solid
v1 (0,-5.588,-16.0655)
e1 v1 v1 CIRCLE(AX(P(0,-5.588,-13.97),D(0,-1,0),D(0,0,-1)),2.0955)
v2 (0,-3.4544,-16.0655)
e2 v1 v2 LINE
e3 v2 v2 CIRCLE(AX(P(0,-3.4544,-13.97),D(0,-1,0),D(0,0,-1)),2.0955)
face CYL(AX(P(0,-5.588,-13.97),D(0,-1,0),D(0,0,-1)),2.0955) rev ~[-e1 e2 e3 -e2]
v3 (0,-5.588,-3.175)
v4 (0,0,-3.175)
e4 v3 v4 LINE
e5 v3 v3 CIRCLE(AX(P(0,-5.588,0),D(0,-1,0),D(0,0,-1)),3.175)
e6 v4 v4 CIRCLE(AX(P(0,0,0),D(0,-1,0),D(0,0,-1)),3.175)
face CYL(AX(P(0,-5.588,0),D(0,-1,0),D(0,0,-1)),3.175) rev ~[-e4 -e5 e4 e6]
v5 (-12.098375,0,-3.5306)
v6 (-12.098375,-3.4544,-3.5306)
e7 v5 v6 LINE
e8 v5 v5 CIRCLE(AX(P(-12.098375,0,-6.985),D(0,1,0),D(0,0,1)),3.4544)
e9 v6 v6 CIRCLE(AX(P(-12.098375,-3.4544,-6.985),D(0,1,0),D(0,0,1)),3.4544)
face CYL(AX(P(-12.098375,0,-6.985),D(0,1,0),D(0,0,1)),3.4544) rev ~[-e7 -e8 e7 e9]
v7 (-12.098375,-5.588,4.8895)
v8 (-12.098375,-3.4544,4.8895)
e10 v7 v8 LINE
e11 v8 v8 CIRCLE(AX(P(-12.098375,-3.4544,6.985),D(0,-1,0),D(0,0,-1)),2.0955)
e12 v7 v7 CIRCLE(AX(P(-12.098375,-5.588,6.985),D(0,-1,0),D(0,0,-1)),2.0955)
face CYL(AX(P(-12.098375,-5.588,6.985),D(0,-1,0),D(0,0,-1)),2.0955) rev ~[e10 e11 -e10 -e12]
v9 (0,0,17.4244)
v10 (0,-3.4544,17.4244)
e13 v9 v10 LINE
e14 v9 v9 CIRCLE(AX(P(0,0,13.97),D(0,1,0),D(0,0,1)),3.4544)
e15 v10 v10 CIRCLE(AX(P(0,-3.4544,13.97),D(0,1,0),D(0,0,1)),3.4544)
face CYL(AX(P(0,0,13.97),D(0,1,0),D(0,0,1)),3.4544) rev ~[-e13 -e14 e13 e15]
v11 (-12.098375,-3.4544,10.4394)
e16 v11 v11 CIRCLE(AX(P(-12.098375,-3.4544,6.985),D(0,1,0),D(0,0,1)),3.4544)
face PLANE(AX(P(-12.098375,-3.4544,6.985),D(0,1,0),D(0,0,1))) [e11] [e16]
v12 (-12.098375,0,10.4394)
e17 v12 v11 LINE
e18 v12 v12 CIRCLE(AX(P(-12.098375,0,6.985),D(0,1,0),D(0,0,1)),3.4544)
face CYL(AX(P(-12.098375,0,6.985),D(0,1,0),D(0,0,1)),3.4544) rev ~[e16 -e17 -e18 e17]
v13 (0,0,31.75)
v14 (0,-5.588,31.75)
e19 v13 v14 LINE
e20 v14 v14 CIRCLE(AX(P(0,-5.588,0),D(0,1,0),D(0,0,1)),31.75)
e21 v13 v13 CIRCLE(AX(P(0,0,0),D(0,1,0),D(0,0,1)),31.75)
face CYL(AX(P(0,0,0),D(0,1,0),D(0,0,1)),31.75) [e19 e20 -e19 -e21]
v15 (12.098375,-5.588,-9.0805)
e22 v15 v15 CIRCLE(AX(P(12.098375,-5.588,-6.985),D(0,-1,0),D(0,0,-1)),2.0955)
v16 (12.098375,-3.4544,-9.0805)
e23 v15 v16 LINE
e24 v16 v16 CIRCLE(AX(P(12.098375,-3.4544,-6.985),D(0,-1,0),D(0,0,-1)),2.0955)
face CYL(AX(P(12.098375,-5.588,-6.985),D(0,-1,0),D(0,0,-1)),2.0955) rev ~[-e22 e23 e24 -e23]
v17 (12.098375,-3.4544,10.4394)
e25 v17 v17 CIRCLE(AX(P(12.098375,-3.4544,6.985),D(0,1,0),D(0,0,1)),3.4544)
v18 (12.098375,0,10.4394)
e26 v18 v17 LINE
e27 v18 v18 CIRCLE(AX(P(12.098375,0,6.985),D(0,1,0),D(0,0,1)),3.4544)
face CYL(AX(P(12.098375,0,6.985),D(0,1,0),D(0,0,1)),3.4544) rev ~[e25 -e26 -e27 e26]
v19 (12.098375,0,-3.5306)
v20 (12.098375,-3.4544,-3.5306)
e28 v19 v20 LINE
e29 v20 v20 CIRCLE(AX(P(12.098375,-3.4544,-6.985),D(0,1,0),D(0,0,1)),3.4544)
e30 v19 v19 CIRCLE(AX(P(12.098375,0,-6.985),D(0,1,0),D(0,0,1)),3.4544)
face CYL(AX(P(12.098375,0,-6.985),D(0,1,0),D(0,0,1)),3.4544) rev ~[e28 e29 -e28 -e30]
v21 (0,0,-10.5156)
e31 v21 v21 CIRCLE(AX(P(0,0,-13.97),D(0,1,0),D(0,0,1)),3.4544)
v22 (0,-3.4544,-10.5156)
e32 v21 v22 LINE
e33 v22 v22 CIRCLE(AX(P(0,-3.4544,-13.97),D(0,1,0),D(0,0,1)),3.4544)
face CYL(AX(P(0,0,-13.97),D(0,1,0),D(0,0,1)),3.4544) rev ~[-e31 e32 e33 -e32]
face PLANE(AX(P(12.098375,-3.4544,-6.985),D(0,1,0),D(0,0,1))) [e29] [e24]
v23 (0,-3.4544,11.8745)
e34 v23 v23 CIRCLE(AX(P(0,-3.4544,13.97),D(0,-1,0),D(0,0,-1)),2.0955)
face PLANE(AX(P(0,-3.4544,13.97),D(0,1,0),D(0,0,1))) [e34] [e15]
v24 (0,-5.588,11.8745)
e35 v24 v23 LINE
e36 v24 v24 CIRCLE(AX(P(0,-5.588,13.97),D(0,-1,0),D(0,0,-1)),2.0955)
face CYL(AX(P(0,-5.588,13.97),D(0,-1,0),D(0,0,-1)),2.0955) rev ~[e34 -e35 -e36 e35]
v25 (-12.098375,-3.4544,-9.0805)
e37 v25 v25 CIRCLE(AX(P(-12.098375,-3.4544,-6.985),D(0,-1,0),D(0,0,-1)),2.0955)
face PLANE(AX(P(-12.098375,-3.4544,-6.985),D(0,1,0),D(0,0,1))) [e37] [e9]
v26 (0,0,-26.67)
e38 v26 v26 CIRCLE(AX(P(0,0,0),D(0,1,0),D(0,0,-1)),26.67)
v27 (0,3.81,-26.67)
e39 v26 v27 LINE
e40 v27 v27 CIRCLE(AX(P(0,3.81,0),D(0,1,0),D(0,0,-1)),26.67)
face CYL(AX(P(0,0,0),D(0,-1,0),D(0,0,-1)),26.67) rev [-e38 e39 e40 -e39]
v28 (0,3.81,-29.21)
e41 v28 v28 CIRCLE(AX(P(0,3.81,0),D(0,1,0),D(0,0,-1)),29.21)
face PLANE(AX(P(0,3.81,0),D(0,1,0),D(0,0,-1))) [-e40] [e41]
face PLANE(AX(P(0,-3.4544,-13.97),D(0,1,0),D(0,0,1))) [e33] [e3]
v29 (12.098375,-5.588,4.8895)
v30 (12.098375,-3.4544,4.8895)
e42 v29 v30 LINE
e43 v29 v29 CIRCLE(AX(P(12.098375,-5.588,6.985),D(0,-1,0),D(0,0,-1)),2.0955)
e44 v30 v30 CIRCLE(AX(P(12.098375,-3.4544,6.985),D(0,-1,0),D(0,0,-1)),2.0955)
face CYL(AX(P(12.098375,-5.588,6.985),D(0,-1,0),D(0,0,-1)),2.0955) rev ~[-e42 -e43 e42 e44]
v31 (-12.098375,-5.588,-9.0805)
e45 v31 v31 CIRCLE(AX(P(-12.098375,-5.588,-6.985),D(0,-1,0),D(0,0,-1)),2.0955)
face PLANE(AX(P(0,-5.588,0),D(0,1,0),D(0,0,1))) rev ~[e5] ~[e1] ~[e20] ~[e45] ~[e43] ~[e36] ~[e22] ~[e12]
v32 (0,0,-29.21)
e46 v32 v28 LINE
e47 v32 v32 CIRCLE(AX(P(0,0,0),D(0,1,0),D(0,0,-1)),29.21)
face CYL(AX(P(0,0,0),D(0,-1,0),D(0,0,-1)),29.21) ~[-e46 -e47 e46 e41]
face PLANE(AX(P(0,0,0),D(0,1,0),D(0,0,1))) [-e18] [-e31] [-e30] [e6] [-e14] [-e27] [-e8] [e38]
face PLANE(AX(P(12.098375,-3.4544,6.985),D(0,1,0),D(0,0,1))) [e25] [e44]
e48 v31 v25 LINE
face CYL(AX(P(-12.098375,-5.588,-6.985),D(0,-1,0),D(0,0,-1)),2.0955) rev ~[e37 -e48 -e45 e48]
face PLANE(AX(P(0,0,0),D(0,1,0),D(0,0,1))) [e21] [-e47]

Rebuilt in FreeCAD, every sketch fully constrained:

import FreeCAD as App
import Part
import Sketcher

V = App.Vector
Q = App.Units.Quantity

doc = App.newDocument("Part")
params = doc.addObject("Spreadsheet::Sheet", "Params")
for row, (alias, value) in enumerate([
    ("sketch1_diameter", "2.5 in"),
    ("pad1_length", "0.22 in"),
    ("sketch2_diameter", "0.165 in"),
    ("pocket1_length", "0.3 in"),
    ("sketch3_diameter", "0.272 in"),
    ("pocket2_length", "0.136 in"),
    ("sketch4_diameter", "0.25 in"),
    ("sketch5_diameter", "2.3 in"),
    ("sketch5_diameter2", "2.1 in"),
    ("pad2_length", "0.15 in"),
], start=1):
    params.set(f"A{row}", alias)
    params.set(f"B{row}", "=" + value)
    params.setAlias(f"B{row}", alias)

body = doc.addObject("PartDesign::Body", "Body")

# Sketch on XZ plane
sketch1 = body.newObject("Sketcher::SketchObject", "Sketch")
sketch1.AttachmentSupport = (doc.getObject("XZ_Plane"), [""])
sketch1.MapMode = "FlatFace"
sketch1.addGeometry(Part.Circle(V(0, 0, 0), V(0, 0, 1), 31.75), False)
sketch1.addConstraint(Sketcher.Constraint("Coincident", 0, 3, -1, 1))
sketch1.addConstraint(Sketcher.Constraint("Diameter", 0, Q("2.5 in")))
sketch1.setExpression("Constraints[1]", "Params.sketch1_diameter")
pad1 = body.newObject("PartDesign::Pad", "Pad")
pad1.Profile = sketch1
pad1.setExpression("Length", "Params.pad1_length")

# Sketch on XZ plane
sketch2 = body.newObject("Sketcher::SketchObject", "Sketch001")
sketch2.AttachmentSupport = (doc.getObject("XZ_Plane"), [""])
sketch2.MapMode = "FlatFace"
sketch2.AttachmentOffset = App.Placement(V(0, 0, 0.22 * 25.4), App.Rotation())
sketch2.addGeometry(Part.Circle(V(0, 13.97, 0), V(0, 0, 1), 2.0955), False)
sketch2.addGeometry(Part.Circle(V(12.098375, 6.985, 0), V(0, 0, 1), 2.0955), False)
sketch2.addGeometry(Part.Circle(V(12.098375, -6.985, 0), V(0, 0, 1), 2.0955), False)
sketch2.addGeometry(Part.Circle(V(0, -13.97, 0), V(0, 0, 1), 2.0955), False)
sketch2.addGeometry(Part.Circle(V(-12.098375, -6.985, 0), V(0, 0, 1), 2.0955), False)
sketch2.addGeometry(Part.Circle(V(-12.098375, 6.985, 0), V(0, 0, 1), 2.0955), False)
sketch2.addConstraint(Sketcher.Constraint("Equal", 0, 1))
sketch2.addConstraint(Sketcher.Constraint("Equal", 1, 2))
sketch2.addConstraint(Sketcher.Constraint("Equal", 2, 3))
sketch2.addConstraint(Sketcher.Constraint("Equal", 3, 4))
sketch2.addConstraint(Sketcher.Constraint("Equal", 4, 5))
sketch2.addConstraint(Sketcher.Constraint("Symmetric", 0, 3, 3, 3, -1, 1))
sketch2.addConstraint(Sketcher.Constraint("Symmetric", 1, 3, 4, 3, -1, 1))
sketch2.addConstraint(Sketcher.Constraint("Symmetric", 2, 3, 5, 3, -1, 1))
sketch2.addConstraint(Sketcher.Constraint("Symmetric", 2, 3, 4, 3, -2))
sketch2.addConstraint(Sketcher.Constraint("PointOnObject", 0, 3, -2))
sketch2.addConstraint(Sketcher.Constraint("Diameter", 0, Q("0.165 in")))
sketch2.addConstraint(Sketcher.Constraint("DistanceY", 3, 3, 0, 3, Q("1.1 in")))
sketch2.addConstraint(Sketcher.Constraint("DistanceY", 2, 3, 1, 3, Q("0.55 in")))
sketch2.addConstraint(Sketcher.Constraint("DistanceX", 4, 3, 2, 3, 24.19675))
sketch2.setExpression("Constraints[10]", "Params.sketch2_diameter")
pocket1 = body.newObject("PartDesign::Pocket", "Pocket")
pocket1.Profile = sketch2
pocket1.setExpression("Length", "Params.pocket1_length")

# Sketch on XZ plane
sketch3 = body.newObject("Sketcher::SketchObject", "Sketch002")
sketch3.AttachmentSupport = (doc.getObject("XZ_Plane"), [""])
sketch3.MapMode = "FlatFace"
sketch3.addGeometry(Part.Circle(V(12.098375, 6.985, 0), V(0, 0, 1), 3.4544), False)
sketch3.addGeometry(Part.Circle(V(0, 13.97, 0), V(0, 0, 1), 3.4544), False)
sketch3.addGeometry(Part.Circle(V(-12.098375, 6.985, 0), V(0, 0, 1), 3.4544), False)
sketch3.addGeometry(Part.Circle(V(-12.098375, -6.985, 0), V(0, 0, 1), 3.4544), False)
sketch3.addGeometry(Part.Circle(V(0, -13.97, 0), V(0, 0, 1), 3.4544), False)
sketch3.addGeometry(Part.Circle(V(12.098375, -6.985, 0), V(0, 0, 1), 3.4544), False)
sketch3.addConstraint(Sketcher.Constraint("Equal", 0, 1))
sketch3.addConstraint(Sketcher.Constraint("Equal", 1, 2))
sketch3.addConstraint(Sketcher.Constraint("Equal", 2, 3))
sketch3.addConstraint(Sketcher.Constraint("Equal", 3, 4))
sketch3.addConstraint(Sketcher.Constraint("Equal", 4, 5))
sketch3.addConstraint(Sketcher.Constraint("Symmetric", 0, 3, 3, 3, -1, 1))
sketch3.addConstraint(Sketcher.Constraint("Symmetric", 1, 3, 4, 3, -1, 1))
sketch3.addConstraint(Sketcher.Constraint("Symmetric", 2, 3, 5, 3, -1, 1))
sketch3.addConstraint(Sketcher.Constraint("Symmetric", 0, 3, 2, 3, -2))
sketch3.addConstraint(Sketcher.Constraint("PointOnObject", 1, 3, -2))
sketch3.addConstraint(Sketcher.Constraint("Diameter", 0, Q("0.272 in")))
sketch3.addConstraint(Sketcher.Constraint("DistanceY", 4, 3, 1, 3, Q("1.1 in")))
sketch3.addConstraint(Sketcher.Constraint("DistanceY", 3, 3, 2, 3, Q("0.55 in")))
sketch3.addConstraint(Sketcher.Constraint("DistanceX", 2, 3, 0, 3, 24.19675))
sketch3.setExpression("Constraints[10]", "Params.sketch3_diameter")
pocket2 = body.newObject("PartDesign::Pocket", "Pocket001")
pocket2.Profile = sketch3
pocket2.setExpression("Length", "Params.pocket2_length")
pocket2.Reversed = True

# Sketch on XZ plane
sketch4 = body.newObject("Sketcher::SketchObject", "Sketch003")
sketch4.AttachmentSupport = (doc.getObject("XZ_Plane"), [""])
sketch4.MapMode = "FlatFace"
sketch4.AttachmentOffset = App.Placement(V(0, 0, 0.22 * 25.4), App.Rotation())
sketch4.addGeometry(Part.Circle(V(0, 0, 0), V(0, 0, 1), 3.175), False)
sketch4.addConstraint(Sketcher.Constraint("Coincident", 0, 3, -1, 1))
sketch4.addConstraint(Sketcher.Constraint("Diameter", 0, Q("0.25 in")))
sketch4.setExpression("Constraints[1]", "Params.sketch4_diameter")
pocket3 = body.newObject("PartDesign::Pocket", "Pocket002")
pocket3.Profile = sketch4
pocket3.Type = "ThroughAll"

# Sketch on XZ plane
sketch5 = body.newObject("Sketcher::SketchObject", "Sketch004")
sketch5.AttachmentSupport = (doc.getObject("XZ_Plane"), [""])
sketch5.MapMode = "FlatFace"
sketch5.addGeometry(Part.Circle(V(0, 0, 0), V(0, 0, 1), 29.21), False)
sketch5.addGeometry(Part.Circle(V(0, 0, 0), V(0, 0, 1), 26.67), False)
sketch5.addConstraint(Sketcher.Constraint("Coincident", 0, 3, -1, 1))
sketch5.addConstraint(Sketcher.Constraint("Coincident", 1, 3, -1, 1))
sketch5.addConstraint(Sketcher.Constraint("Diameter", 0, Q("2.3 in")))
sketch5.addConstraint(Sketcher.Constraint("Diameter", 1, Q("2.1 in")))
sketch5.setExpression("Constraints[2]", "Params.sketch5_diameter")
sketch5.setExpression("Constraints[3]", "Params.sketch5_diameter2")
pad2 = body.newObject("PartDesign::Pad", "Pad001")
pad2.Profile = sketch5
pad2.setExpression("Length", "Params.pad2_length")
pad2.Reversed = True

doc.recompute()
